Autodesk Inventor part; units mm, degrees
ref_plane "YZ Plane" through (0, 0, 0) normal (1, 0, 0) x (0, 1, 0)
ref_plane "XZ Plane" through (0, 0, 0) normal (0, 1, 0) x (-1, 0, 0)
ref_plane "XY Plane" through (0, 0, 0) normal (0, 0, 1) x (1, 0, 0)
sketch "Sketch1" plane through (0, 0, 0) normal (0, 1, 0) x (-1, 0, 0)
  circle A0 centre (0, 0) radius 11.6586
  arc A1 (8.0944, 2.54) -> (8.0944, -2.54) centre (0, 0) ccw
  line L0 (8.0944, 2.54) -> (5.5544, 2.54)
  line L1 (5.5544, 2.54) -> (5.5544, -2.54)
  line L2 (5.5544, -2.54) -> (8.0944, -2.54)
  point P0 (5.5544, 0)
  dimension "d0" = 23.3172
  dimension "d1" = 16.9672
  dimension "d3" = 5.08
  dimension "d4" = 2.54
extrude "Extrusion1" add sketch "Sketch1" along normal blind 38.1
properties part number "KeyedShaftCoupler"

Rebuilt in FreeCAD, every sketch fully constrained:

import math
import FreeCAD as App
import Part
import Sketcher
from FreeCAD import Vector
Q = App.Units.Quantity

doc = App.newDocument("Part")
body = doc.addObject("PartDesign::Body", "Body")

# Sketch on XZ plane
sketch1 = body.newObject("Sketcher::SketchObject", "Sketch")
sketch1.AttachmentSupport = (doc.getObject("XZ_Plane"), [""])
sketch1.MapMode = "FlatFace"
sketch1.addGeometry(Part.Circle(Vector(0, 0, 0), Vector(0, 0, 1), 11.6586), False)
sketch1.addGeometry(Part.ArcOfCircle(Part.Circle(Vector(0, 0, 0), Vector(0, 0, 1), 8.483567), math.radians(-162.578289), math.radians(162.578289)), False)
sketch1.addGeometry(Part.LineSegment(Vector(-8.0944, 2.54, 0), Vector(-5.5544, 2.54, 0)), False)
sketch1.addGeometry(Part.LineSegment(Vector(-5.5544, 2.54, 0), Vector(-5.5544, -2.54, 0)), False)
sketch1.addGeometry(Part.LineSegment(Vector(-5.5544, -2.54, 0), Vector(-8.0944, -2.54, 0)), False)
sketch1.addConstraint(Sketcher.Constraint("Coincident", 1, 2, 2, 1))
sketch1.addConstraint(Sketcher.Constraint("Coincident", 2, 2, 3, 1))
sketch1.addConstraint(Sketcher.Constraint("Coincident", 3, 2, 4, 1))
sketch1.addConstraint(Sketcher.Constraint("Coincident", 4, 2, 1, 1))
sketch1.addConstraint(Sketcher.Constraint("Horizontal", 2))
sketch1.addConstraint(Sketcher.Constraint("Vertical", 3))
sketch1.addConstraint(Sketcher.Constraint("Horizontal", 4))
sketch1.addConstraint(Sketcher.Constraint("Coincident", 0, 3, -1, 1))
sketch1.addConstraint(Sketcher.Constraint("Coincident", 1, 3, -1, 1))
sketch1.addConstraint(Sketcher.Constraint("Vertical", 1, 2, 4, 2))
sketch1.addConstraint(Sketcher.Constraint("Diameter", 0, Q("0.918 in")))
sketch1.addConstraint(Sketcher.Constraint("DistanceX", 2, 1, 2, 2, Q("0.1 in")))
sketch1.addConstraint(Sketcher.Constraint("DistanceY", 3, 2, 3, 1, Q("0.2 in")))
sketch1.addConstraint(Sketcher.Constraint("Radius", 1, Q("0.334 in")))
pad1 = body.newObject("PartDesign::Pad", "Pad")
pad1.Profile = sketch1
pad1.Length = Q("1.5 in")
pad1.Reversed = True

doc.recompute()
